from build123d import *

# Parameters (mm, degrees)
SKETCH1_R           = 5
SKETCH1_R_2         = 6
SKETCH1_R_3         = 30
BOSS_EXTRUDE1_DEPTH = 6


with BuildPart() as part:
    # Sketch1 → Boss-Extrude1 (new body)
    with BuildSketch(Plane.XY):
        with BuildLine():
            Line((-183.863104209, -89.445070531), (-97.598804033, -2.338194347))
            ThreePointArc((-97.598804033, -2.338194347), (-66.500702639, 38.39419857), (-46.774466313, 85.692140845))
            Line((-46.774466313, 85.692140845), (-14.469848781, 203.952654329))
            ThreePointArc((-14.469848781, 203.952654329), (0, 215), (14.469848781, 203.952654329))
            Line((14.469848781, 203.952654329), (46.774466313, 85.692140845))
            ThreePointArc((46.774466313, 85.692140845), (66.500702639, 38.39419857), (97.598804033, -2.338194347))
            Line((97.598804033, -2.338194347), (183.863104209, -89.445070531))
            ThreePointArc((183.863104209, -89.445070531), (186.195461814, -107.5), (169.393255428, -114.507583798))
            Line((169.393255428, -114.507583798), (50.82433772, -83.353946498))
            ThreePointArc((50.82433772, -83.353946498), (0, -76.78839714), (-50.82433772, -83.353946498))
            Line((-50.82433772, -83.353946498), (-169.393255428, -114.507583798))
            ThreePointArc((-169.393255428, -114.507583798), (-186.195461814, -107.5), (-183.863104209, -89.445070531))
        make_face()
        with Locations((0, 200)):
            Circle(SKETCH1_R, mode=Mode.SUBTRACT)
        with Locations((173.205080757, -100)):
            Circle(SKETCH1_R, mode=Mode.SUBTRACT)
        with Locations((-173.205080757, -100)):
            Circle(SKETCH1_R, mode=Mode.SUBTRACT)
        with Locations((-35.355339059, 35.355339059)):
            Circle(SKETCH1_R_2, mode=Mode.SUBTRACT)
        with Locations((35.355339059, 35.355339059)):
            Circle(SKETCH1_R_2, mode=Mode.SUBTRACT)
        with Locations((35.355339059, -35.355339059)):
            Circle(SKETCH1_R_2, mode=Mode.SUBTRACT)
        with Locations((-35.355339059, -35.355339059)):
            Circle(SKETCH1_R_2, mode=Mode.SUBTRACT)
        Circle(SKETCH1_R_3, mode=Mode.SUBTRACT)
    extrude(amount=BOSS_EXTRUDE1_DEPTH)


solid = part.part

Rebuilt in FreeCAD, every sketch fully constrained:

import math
import FreeCAD as App
import Part
import Sketcher

doc = App.newDocument("Part")
body = doc.addObject("PartDesign::Body", "Body")

# Sketch on XY plane
sketch1 = body.newObject("Sketcher::SketchObject", "Sketch")
sketch1.AttachmentSupport = (doc.getObject("XY_Plane"), [""])
sketch1.MapMode = "FlatFace"
sketch1.addGeometry([
    Part.LineSegment(App.Vector(-97.598804, -2.338194, 0), App.Vector(-183.863104, -89.445071, 0)),  # 0
    Part.ArcOfCircle(Part.Circle(App.Vector(-173.205081, -100, 0), App.Vector(0, 0, 1), 15), math.radians(135.278453), math.radians(284.721547)),  # 1
    Part.LineSegment(App.Vector(-169.393255, -114.507584, 0), App.Vector(-50.824338, -83.353946, 0)),  # 2
    Part.ArcOfCircle(Part.Circle(App.Vector(0, -276.788397, 0), App.Vector(0, 0, 1), 200), math.radians(75.278453), math.radians(104.721547)),  # 3
    Part.LineSegment(App.Vector(50.824338, -83.353946, 0), App.Vector(169.393255, -114.507584, 0)),  # 4
    Part.ArcOfCircle(Part.Circle(App.Vector(173.205081, -100, 0), App.Vector(0, 0, 1), 15), math.radians(-104.721547), math.radians(44.721547)),  # 5
    Part.LineSegment(App.Vector(183.863104, -89.445071, 0), App.Vector(97.598804, -2.338194, 0)),  # 6
    Part.ArcOfCircle(Part.Circle(App.Vector(239.705783, 138.394199, 0), App.Vector(0, 0, 1), 200), math.radians(-164.721547), math.radians(-135.278453)),  # 7
    Part.LineSegment(App.Vector(46.774466, 85.692141, 0), App.Vector(14.469849, 203.952654, 0)),  # 8
    Part.ArcOfCircle(Part.Circle(App.Vector(0, 200, 0), App.Vector(0, 0, 1), 15), math.radians(15.278453), math.radians(164.721547)),  # 9
    Part.LineSegment(App.Vector(-14.469849, 203.952654, 0), App.Vector(-46.774466, 85.692141, 0)),  # 10
    Part.ArcOfCircle(Part.Circle(App.Vector(-239.705783, 138.394199, 0), App.Vector(0, 0, 1), 200), math.radians(-44.721547), math.radians(-15.278453)),  # 11
    Part.Circle(App.Vector(173.205081, -100, 0), App.Vector(0, 0, 1), 5),  # 12
    Part.Circle(App.Vector(35.355339, -35.355339, 0), App.Vector(0, 0, 1), 6),  # 13
    Part.Circle(App.Vector(35.355339, 35.355339, 0), App.Vector(0, 0, 1), 6),  # 14
    Part.Circle(App.Vector(-35.355339, -35.355339, 0), App.Vector(0, 0, 1), 6),  # 15
    Part.Circle(App.Vector(-173.205081, -100, 0), App.Vector(0, 0, 1), 5),  # 16
    Part.Circle(App.Vector(0, 0, 0), App.Vector(0, 0, 1), 30),  # 17
    Part.Circle(App.Vector(-35.355339, 35.355339, 0), App.Vector(0, 0, 1), 6),  # 18
    Part.Circle(App.Vector(0, 200, 0), App.Vector(0, 0, 1), 5),  # 19
], False)
sketch1.addConstraint([
    Sketcher.Constraint("Tangent", 0, 2, 1, 1),
    Sketcher.Constraint("Tangent", 1, 2, 2, 1),
    Sketcher.Constraint("Tangent", 2, 2, 3, 2),
    Sketcher.Constraint("Tangent", 3, 1, 4, 1),
    Sketcher.Constraint("Tangent", 4, 2, 5, 1),
    Sketcher.Constraint("Tangent", 5, 2, 6, 1),
    Sketcher.Constraint("Tangent", 6, 2, 7, 2),
    Sketcher.Constraint("Tangent", 7, 1, 8, 1),
    Sketcher.Constraint("Tangent", 8, 2, 9, 1),
    Sketcher.Constraint("Tangent", 9, 2, 10, 1),
    Sketcher.Constraint("Tangent", 10, 2, 11, 2),
    Sketcher.Constraint("Tangent", 11, 1, 0, 1),
    Sketcher.Constraint("Coincident", 17, 3, -1, 1),
    Sketcher.Constraint("Coincident", 12, 3, 5, 3),
    Sketcher.Constraint("Coincident", 16, 3, 1, 3),
    Sketcher.Constraint("Coincident", 19, 3, 9, 3),
    Sketcher.Constraint("Equal", 1, 5),
    Sketcher.Constraint("Equal", 3, 7),
    Sketcher.Constraint("Equal", 5, 9),
    Sketcher.Constraint("Equal", 7, 11),
    Sketcher.Constraint("Equal", 13, 14),
    Sketcher.Constraint("Equal", 14, 15),
    Sketcher.Constraint("Equal", 12, 16),
    Sketcher.Constraint("Equal", 15, 18),
    Sketcher.Constraint("Equal", 16, 19),
    Sketcher.Constraint("Symmetric", 14, 3, 15, 3, -1, 1),
    Sketcher.Constraint("Symmetric", 13, 3, 18, 3, -1, 1),
    Sketcher.Constraint("Symmetric", 1, 3, 5, 3, -2),
    Sketcher.Constraint("Symmetric", 7, 3, 11, 3, -2),
    Sketcher.Constraint("Symmetric", 13, 3, 15, 3, -2),
    Sketcher.Constraint("PointOnObject", 3, 3, -2),
    Sketcher.Constraint("PointOnObject", 9, 3, -2),
    Sketcher.Constraint("Equal", 0, 2),
    Sketcher.Constraint("Equal", 6, 8),
    Sketcher.Constraint("Diameter", 12, 10.0),
    Sketcher.Constraint("Diameter", 13, 12.0),
    Sketcher.Constraint("Diameter", 17, 60.0),
    Sketcher.Constraint("Radius", 1, 15.0),
    Sketcher.Constraint("Radius", 3, 200.0),
    Sketcher.Constraint("DistanceY", 1, 3, -1, 1, 100.0),
    Sketcher.Constraint("DistanceY", -1, 1, 9, 3, 200.0),
    Sketcher.Constraint("DistanceX", 2, 2, 15, 3, 15.468999),
    Sketcher.Constraint("DistanceY", -1, 1, 7, 3, 138.394199),
    Sketcher.Constraint("DistanceX", 6, 2, 5, 2, 86.2643),
    Sketcher.Constraint("DistanceY", 14, 3, 7, 1, 50.336802),
])
pad1 = body.newObject("PartDesign::Pad", "Pad")
pad1.Profile = sketch1
pad1.Length = 6

doc.recompute()
